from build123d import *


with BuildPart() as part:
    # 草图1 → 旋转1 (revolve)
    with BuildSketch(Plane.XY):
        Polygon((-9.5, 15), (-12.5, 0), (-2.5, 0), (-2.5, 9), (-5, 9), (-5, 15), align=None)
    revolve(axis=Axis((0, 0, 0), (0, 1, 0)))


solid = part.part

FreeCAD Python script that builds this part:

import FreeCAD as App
import Part
import Sketcher

doc = App.newDocument("Part")
body = doc.addObject("PartDesign::Body", "Body")

# Sketch on XY plane
sketch1 = doc.addObject("Sketcher::SketchObject", "Sketch")
body.addObject(sketch1)
sketch1.AttachmentSupport = (doc.XY_Plane, [""])
sketch1.MapMode = "FlatFace"
sketch1.addGeometry(Part.LineSegment(App.Vector(-9.5, 15, 0), App.Vector(-12.5, 0, 0)), False)
sketch1.addGeometry(Part.LineSegment(App.Vector(-12.5, 0, 0), App.Vector(-2.5, 0, 0)), False)
sketch1.addGeometry(Part.LineSegment(App.Vector(-2.5, 0, 0), App.Vector(-2.5, 9, 0)), False)
sketch1.addGeometry(Part.LineSegment(App.Vector(-2.5, 9, 0), App.Vector(-5, 9, 0)), False)
sketch1.addGeometry(Part.LineSegment(App.Vector(-5, 9, 0), App.Vector(-5, 15, 0)), False)
sketch1.addGeometry(Part.LineSegment(App.Vector(-5, 15, 0), App.Vector(-9.5, 15, 0)), False)
sketch1.addConstraint(Sketcher.Constraint("Coincident", 0, 2, 1, 1))
sketch1.addConstraint(Sketcher.Constraint("Coincident", 1, 2, 2, 1))
sketch1.addConstraint(Sketcher.Constraint("Coincident", 2, 2, 3, 1))
sketch1.addConstraint(Sketcher.Constraint("Coincident", 3, 2, 4, 1))
sketch1.addConstraint(Sketcher.Constraint("Coincident", 4, 2, 5, 1))
sketch1.addConstraint(Sketcher.Constraint("Coincident", 5, 2, 0, 1))
sketch1.addConstraint(Sketcher.Constraint("Horizontal", 1))
sketch1.addConstraint(Sketcher.Constraint("Vertical", 2))
sketch1.addConstraint(Sketcher.Constraint("Horizontal", 3))
sketch1.addConstraint(Sketcher.Constraint("Vertical", 4))
sketch1.addConstraint(Sketcher.Constraint("Horizontal", 5))
sketch1.addConstraint(Sketcher.Constraint("PointOnObject", 0, 2, -1))
sketch1.addConstraint(Sketcher.Constraint("DistanceX", 1, 1, 1, 2, 10.0))
sketch1.addConstraint(Sketcher.Constraint("DistanceY", 2, 1, 2, 2, 9.0))
sketch1.addConstraint(Sketcher.Constraint("DistanceY", 4, 1, 4, 2, 6.0))
sketch1.addConstraint(Sketcher.Constraint("DistanceX", 3, 2, 3, 1, 2.5))
sketch1.addConstraint(Sketcher.Constraint("DistanceX", 5, 2, 5, 1, 4.5))
sketch1.addConstraint(Sketcher.Constraint("DistanceX", 3, 2, -1, 1, 5.0))
revolution = doc.addObject("PartDesign::Revolution", "Revolution")
body.addObject(revolution)
revolution.Profile = sketch1
revolution.ReferenceAxis = (sketch1, ["V_Axis"])
revolution.Angle = 360

doc.recompute()
